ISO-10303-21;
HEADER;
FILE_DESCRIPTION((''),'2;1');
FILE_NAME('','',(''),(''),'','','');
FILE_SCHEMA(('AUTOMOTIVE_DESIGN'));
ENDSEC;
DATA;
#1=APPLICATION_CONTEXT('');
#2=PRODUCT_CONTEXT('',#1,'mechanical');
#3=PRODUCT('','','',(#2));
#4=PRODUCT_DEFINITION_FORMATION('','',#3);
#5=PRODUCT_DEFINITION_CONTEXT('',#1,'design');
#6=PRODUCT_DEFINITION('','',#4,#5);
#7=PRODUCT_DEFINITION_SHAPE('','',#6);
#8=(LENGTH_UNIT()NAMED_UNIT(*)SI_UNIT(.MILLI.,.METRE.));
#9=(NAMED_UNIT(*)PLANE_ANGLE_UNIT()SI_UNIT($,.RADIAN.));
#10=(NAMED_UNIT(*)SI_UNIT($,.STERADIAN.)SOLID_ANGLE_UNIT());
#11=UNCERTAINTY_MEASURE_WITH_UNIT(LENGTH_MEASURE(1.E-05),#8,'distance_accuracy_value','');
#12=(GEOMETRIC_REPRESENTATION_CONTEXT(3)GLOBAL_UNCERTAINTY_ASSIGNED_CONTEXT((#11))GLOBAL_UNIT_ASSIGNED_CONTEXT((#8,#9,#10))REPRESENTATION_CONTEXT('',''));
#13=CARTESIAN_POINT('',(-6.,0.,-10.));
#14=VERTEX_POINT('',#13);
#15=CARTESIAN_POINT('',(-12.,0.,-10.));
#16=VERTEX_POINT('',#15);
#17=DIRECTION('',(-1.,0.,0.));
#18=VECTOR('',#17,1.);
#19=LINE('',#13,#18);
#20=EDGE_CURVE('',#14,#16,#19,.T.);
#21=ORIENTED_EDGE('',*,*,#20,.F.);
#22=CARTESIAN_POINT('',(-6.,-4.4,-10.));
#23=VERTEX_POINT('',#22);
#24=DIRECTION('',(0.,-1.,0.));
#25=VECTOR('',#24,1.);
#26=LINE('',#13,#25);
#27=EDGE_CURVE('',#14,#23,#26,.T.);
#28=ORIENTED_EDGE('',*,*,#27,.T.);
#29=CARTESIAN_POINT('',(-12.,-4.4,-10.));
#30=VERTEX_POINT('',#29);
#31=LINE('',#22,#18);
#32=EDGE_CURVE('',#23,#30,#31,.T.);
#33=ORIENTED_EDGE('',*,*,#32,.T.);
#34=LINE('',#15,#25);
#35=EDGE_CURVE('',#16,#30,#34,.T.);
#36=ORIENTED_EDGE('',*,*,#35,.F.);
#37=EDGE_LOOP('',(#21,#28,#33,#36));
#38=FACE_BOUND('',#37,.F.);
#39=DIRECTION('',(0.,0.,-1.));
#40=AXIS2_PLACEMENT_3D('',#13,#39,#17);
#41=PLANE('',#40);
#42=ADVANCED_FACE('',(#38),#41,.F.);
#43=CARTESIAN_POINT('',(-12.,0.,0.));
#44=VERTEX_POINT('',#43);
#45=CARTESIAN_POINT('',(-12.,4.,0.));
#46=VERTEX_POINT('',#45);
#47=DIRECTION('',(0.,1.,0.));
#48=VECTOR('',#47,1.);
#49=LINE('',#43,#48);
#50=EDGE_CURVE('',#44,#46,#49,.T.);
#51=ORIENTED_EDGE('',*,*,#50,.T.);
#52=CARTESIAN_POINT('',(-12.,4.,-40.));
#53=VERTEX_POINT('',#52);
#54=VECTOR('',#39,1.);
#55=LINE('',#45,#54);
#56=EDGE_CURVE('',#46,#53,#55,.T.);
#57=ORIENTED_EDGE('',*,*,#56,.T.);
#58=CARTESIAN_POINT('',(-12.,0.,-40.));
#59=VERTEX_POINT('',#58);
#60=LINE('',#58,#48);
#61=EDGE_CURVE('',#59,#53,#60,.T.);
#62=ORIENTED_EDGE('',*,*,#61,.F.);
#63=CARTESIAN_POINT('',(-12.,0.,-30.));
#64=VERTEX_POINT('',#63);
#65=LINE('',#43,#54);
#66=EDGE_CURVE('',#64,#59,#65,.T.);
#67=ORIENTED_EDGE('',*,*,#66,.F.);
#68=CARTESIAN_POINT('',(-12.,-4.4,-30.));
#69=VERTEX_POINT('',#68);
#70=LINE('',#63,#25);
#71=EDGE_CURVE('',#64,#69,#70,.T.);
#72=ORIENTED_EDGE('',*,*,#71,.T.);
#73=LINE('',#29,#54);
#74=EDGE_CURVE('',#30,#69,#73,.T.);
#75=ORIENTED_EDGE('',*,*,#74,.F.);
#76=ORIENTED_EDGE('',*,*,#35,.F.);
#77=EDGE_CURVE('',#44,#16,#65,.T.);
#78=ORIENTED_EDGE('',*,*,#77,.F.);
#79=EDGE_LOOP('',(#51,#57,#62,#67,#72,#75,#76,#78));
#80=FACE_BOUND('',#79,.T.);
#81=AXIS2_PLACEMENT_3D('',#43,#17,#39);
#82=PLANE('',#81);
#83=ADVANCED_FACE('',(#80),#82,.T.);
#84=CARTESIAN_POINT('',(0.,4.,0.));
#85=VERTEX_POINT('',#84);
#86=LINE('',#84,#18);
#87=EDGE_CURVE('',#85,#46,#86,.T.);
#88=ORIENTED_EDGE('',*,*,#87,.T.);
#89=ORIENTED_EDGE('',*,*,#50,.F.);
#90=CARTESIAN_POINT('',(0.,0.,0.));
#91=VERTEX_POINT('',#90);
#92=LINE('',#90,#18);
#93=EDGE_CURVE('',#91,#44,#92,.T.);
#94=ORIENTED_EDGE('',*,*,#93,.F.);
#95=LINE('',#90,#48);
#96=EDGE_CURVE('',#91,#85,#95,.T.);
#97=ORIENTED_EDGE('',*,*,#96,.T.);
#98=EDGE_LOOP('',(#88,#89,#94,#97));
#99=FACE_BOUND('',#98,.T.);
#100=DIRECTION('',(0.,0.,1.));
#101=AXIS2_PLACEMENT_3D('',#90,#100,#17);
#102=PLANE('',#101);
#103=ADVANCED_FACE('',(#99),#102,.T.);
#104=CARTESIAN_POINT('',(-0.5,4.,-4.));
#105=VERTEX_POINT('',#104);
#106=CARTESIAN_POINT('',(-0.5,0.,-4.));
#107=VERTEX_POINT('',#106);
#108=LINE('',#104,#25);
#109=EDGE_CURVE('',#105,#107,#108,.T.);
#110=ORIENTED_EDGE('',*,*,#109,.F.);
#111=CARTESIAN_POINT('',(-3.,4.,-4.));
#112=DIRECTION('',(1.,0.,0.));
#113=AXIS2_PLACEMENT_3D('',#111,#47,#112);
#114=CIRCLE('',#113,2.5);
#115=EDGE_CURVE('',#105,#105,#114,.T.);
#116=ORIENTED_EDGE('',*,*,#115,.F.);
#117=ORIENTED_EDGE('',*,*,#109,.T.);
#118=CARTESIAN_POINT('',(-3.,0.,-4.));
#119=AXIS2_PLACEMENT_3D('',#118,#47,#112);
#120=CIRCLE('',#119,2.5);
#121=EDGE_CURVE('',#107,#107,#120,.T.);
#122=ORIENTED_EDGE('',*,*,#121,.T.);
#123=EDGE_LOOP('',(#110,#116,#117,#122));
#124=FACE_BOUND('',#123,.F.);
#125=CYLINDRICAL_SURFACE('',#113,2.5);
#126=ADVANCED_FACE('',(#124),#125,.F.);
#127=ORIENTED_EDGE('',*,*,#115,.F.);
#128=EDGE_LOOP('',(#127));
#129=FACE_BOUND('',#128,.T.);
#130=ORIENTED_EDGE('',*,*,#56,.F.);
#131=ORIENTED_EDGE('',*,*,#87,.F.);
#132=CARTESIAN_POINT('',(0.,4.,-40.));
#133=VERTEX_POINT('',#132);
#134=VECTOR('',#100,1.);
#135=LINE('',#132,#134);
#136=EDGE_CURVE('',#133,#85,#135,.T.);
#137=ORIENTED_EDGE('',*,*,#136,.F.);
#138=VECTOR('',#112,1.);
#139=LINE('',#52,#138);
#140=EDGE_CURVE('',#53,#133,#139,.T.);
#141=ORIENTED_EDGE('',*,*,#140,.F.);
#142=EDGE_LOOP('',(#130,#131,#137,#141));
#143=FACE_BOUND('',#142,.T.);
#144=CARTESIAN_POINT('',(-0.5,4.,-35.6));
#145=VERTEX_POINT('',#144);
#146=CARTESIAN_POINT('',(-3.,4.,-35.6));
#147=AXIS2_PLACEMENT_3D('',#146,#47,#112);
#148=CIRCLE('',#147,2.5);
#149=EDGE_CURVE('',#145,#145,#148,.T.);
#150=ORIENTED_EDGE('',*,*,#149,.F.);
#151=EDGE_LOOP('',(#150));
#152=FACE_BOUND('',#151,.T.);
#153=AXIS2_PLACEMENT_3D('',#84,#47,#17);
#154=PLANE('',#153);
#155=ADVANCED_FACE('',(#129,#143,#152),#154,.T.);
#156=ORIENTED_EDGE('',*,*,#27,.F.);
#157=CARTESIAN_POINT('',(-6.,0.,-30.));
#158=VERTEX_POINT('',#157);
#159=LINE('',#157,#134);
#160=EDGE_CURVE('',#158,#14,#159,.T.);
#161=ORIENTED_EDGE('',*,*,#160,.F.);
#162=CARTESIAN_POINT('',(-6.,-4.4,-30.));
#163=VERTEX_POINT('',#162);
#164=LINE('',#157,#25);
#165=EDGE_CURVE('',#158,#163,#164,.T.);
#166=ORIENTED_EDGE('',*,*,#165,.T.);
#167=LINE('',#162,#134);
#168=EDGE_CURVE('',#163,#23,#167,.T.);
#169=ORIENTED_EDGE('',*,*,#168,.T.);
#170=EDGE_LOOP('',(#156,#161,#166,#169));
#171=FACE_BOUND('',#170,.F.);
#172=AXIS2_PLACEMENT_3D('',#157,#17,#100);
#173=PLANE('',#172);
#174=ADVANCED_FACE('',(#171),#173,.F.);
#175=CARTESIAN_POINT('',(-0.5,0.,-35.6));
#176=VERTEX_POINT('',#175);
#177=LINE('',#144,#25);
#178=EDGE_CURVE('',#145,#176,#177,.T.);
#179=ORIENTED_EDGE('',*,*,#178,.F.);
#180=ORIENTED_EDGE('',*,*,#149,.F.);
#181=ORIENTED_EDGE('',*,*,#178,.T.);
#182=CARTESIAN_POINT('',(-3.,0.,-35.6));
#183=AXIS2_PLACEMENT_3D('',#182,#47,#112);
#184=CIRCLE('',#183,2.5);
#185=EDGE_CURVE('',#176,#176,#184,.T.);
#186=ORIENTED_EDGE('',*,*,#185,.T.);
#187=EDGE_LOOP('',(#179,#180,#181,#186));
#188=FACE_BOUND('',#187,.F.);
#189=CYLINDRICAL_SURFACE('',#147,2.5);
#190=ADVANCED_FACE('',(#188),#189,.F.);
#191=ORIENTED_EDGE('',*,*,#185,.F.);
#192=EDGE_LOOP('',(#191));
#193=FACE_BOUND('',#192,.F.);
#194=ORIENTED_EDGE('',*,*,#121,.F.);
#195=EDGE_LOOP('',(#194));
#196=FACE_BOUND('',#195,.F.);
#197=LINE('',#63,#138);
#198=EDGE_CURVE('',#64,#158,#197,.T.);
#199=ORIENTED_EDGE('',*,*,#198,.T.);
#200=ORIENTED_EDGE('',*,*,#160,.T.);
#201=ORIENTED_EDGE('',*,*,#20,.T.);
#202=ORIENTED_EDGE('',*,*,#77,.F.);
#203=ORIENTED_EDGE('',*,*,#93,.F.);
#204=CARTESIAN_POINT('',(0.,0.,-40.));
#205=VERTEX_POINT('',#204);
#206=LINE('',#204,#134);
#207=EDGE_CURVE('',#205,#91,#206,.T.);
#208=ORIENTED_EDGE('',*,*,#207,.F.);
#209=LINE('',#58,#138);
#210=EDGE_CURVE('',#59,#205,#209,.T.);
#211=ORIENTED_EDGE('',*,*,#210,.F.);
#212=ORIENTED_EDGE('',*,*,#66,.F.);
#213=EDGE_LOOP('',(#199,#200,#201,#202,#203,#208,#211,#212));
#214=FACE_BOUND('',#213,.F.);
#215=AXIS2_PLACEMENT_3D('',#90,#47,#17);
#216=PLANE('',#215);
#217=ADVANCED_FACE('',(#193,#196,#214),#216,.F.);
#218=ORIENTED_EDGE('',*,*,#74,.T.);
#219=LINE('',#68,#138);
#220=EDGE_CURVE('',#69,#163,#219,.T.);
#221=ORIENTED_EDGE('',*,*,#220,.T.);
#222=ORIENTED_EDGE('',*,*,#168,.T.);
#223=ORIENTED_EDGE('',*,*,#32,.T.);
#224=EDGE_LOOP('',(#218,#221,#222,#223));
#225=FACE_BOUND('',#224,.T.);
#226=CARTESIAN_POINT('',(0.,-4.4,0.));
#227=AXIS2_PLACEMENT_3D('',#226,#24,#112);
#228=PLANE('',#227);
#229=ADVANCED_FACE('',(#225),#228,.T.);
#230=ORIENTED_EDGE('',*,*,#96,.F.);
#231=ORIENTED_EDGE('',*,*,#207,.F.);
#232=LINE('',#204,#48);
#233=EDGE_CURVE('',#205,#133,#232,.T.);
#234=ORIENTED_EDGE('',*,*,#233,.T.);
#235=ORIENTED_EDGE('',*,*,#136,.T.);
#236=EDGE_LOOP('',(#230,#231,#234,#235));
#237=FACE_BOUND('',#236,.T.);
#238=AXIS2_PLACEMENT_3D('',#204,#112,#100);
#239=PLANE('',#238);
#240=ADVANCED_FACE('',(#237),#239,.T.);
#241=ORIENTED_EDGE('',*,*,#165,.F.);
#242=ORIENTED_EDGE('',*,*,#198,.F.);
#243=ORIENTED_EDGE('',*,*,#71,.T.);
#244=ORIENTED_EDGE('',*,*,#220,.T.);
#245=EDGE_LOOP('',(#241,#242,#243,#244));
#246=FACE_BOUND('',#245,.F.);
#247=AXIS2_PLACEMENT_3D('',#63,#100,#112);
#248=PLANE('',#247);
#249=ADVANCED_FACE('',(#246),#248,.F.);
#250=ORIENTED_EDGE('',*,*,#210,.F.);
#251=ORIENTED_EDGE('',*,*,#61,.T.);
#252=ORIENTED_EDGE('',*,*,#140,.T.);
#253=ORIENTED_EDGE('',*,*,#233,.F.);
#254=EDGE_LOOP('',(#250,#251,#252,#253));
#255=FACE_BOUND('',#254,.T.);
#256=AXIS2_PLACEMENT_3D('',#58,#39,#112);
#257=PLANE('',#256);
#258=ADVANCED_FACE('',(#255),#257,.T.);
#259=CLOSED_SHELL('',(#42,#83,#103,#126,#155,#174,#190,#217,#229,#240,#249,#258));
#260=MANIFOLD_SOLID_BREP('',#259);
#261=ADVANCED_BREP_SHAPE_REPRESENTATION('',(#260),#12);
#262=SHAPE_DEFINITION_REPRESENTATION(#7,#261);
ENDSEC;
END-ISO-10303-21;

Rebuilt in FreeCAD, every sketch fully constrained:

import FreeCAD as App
import Part
import Sketcher

doc = App.newDocument("Part")
body = doc.addObject("PartDesign::Body", "Body")

# Sketch on XZ plane
sketch1 = doc.addObject("Sketcher::SketchObject", "Sketch")
body.addObject(sketch1)
sketch1.AttachmentSupport = (doc.XZ_Plane, [""])
sketch1.MapMode = "FlatFace"
sketch1.addGeometry([
    Part.LineSegment(App.Vector(-12, 0, 0), App.Vector(0, 0, 0)),
    Part.LineSegment(App.Vector(0, 0, 0), App.Vector(0, -40, 0)),
    Part.LineSegment(App.Vector(0, -40, 0), App.Vector(-12, -40, 0)),
    Part.LineSegment(App.Vector(-12, -40, 0), App.Vector(-12, 0, 0)),
], False)
sketch1.addConstraint([
    Sketcher.Constraint("Coincident", 0, 2, 1, 1),
    Sketcher.Constraint("Coincident", 1, 2, 2, 1),
    Sketcher.Constraint("Coincident", 2, 2, 3, 1),
    Sketcher.Constraint("Coincident", 3, 2, 0, 1),
    Sketcher.Constraint("Horizontal", 0),
    Sketcher.Constraint("Vertical", 1),
    Sketcher.Constraint("Horizontal", 2),
    Sketcher.Constraint("Vertical", 3),
    Sketcher.Constraint("Coincident", 0, 2, -1, 1),
    Sketcher.Constraint("DistanceX", 0, 1, 0, 2, 12.0),
    Sketcher.Constraint("DistanceY", 1, 2, 1, 1, 40.0),
])
pad1 = doc.addObject("PartDesign::Pad", "Pad")
body.addObject(pad1)
pad1.Profile = sketch1
pad1.Length = 4
pad1.Reversed = True

# Sketch on XZ plane
sketch2 = doc.addObject("Sketcher::SketchObject", "Sketch001")
body.addObject(sketch2)
sketch2.AttachmentSupport = (doc.XZ_Plane, [""])
sketch2.MapMode = "FlatFace"
sketch2.AttachmentOffset = App.Placement(App.Vector(0, 0, -4), App.Rotation())
sketch2.addGeometry([
    Part.Circle(App.Vector(-3, -4, 0), App.Vector(0, 0, 1), 2.5),
    Part.Circle(App.Vector(-3, -35.6, 0), App.Vector(0, 0, 1), 2.5),
], False)
sketch2.addConstraint([
    Sketcher.Constraint("Equal", 0, 1),
    Sketcher.Constraint("Vertical", 0, 3, 1, 3),
    Sketcher.Constraint("Diameter", 0, 5.0),
    Sketcher.Constraint("DistanceX", 0, 3, -1, 1, 3.0),
    Sketcher.Constraint("DistanceY", 0, 3, -1, 1, 4.0),
    Sketcher.Constraint("DistanceY", 1, 3, 0, 3, 31.6),
])
pocket1 = doc.addObject("PartDesign::Pocket", "Pocket")
body.addObject(pocket1)
pocket1.Profile = sketch2
pocket1.Length = 4
pocket1.Reversed = True

# Sketch on XZ plane
sketch3 = doc.addObject("Sketcher::SketchObject", "Sketch002")
body.addObject(sketch3)
sketch3.AttachmentSupport = (doc.XZ_Plane, [""])
sketch3.MapMode = "FlatFace"
sketch3.addGeometry([
    Part.LineSegment(App.Vector(-12, -10, 0), App.Vector(-12, -30, 0)),
    Part.LineSegment(App.Vector(-12, -30, 0), App.Vector(-6, -30, 0)),
    Part.LineSegment(App.Vector(-6, -30, 0), App.Vector(-6, -10, 0)),
    Part.LineSegment(App.Vector(-6, -10, 0), App.Vector(-12, -10, 0)),
], False)
sketch3.addConstraint([
    Sketcher.Constraint("Coincident", 0, 2, 1, 1),
    Sketcher.Constraint("Coincident", 1, 2, 2, 1),
    Sketcher.Constraint("Coincident", 2, 2, 3, 1),
    Sketcher.Constraint("Coincident", 3, 2, 0, 1),
    Sketcher.Constraint("Vertical", 0),
    Sketcher.Constraint("Horizontal", 1),
    Sketcher.Constraint("Vertical", 2),
    Sketcher.Constraint("Horizontal", 3),
    Sketcher.Constraint("DistanceX", 1, 1, 1, 2, 6.0),
    Sketcher.Constraint("DistanceX", 1, 2, -1, 1, 6.0),
    Sketcher.Constraint("DistanceY", 2, 2, -1, 1, 10.0),
    Sketcher.Constraint("DistanceY", 0, 2, 0, 1, 20.0),
])
pad2 = doc.addObject("PartDesign::Pad", "Pad001")
body.addObject(pad2)
pad2.Profile = sketch3
pad2.Length = 4.4

doc.recompute()
